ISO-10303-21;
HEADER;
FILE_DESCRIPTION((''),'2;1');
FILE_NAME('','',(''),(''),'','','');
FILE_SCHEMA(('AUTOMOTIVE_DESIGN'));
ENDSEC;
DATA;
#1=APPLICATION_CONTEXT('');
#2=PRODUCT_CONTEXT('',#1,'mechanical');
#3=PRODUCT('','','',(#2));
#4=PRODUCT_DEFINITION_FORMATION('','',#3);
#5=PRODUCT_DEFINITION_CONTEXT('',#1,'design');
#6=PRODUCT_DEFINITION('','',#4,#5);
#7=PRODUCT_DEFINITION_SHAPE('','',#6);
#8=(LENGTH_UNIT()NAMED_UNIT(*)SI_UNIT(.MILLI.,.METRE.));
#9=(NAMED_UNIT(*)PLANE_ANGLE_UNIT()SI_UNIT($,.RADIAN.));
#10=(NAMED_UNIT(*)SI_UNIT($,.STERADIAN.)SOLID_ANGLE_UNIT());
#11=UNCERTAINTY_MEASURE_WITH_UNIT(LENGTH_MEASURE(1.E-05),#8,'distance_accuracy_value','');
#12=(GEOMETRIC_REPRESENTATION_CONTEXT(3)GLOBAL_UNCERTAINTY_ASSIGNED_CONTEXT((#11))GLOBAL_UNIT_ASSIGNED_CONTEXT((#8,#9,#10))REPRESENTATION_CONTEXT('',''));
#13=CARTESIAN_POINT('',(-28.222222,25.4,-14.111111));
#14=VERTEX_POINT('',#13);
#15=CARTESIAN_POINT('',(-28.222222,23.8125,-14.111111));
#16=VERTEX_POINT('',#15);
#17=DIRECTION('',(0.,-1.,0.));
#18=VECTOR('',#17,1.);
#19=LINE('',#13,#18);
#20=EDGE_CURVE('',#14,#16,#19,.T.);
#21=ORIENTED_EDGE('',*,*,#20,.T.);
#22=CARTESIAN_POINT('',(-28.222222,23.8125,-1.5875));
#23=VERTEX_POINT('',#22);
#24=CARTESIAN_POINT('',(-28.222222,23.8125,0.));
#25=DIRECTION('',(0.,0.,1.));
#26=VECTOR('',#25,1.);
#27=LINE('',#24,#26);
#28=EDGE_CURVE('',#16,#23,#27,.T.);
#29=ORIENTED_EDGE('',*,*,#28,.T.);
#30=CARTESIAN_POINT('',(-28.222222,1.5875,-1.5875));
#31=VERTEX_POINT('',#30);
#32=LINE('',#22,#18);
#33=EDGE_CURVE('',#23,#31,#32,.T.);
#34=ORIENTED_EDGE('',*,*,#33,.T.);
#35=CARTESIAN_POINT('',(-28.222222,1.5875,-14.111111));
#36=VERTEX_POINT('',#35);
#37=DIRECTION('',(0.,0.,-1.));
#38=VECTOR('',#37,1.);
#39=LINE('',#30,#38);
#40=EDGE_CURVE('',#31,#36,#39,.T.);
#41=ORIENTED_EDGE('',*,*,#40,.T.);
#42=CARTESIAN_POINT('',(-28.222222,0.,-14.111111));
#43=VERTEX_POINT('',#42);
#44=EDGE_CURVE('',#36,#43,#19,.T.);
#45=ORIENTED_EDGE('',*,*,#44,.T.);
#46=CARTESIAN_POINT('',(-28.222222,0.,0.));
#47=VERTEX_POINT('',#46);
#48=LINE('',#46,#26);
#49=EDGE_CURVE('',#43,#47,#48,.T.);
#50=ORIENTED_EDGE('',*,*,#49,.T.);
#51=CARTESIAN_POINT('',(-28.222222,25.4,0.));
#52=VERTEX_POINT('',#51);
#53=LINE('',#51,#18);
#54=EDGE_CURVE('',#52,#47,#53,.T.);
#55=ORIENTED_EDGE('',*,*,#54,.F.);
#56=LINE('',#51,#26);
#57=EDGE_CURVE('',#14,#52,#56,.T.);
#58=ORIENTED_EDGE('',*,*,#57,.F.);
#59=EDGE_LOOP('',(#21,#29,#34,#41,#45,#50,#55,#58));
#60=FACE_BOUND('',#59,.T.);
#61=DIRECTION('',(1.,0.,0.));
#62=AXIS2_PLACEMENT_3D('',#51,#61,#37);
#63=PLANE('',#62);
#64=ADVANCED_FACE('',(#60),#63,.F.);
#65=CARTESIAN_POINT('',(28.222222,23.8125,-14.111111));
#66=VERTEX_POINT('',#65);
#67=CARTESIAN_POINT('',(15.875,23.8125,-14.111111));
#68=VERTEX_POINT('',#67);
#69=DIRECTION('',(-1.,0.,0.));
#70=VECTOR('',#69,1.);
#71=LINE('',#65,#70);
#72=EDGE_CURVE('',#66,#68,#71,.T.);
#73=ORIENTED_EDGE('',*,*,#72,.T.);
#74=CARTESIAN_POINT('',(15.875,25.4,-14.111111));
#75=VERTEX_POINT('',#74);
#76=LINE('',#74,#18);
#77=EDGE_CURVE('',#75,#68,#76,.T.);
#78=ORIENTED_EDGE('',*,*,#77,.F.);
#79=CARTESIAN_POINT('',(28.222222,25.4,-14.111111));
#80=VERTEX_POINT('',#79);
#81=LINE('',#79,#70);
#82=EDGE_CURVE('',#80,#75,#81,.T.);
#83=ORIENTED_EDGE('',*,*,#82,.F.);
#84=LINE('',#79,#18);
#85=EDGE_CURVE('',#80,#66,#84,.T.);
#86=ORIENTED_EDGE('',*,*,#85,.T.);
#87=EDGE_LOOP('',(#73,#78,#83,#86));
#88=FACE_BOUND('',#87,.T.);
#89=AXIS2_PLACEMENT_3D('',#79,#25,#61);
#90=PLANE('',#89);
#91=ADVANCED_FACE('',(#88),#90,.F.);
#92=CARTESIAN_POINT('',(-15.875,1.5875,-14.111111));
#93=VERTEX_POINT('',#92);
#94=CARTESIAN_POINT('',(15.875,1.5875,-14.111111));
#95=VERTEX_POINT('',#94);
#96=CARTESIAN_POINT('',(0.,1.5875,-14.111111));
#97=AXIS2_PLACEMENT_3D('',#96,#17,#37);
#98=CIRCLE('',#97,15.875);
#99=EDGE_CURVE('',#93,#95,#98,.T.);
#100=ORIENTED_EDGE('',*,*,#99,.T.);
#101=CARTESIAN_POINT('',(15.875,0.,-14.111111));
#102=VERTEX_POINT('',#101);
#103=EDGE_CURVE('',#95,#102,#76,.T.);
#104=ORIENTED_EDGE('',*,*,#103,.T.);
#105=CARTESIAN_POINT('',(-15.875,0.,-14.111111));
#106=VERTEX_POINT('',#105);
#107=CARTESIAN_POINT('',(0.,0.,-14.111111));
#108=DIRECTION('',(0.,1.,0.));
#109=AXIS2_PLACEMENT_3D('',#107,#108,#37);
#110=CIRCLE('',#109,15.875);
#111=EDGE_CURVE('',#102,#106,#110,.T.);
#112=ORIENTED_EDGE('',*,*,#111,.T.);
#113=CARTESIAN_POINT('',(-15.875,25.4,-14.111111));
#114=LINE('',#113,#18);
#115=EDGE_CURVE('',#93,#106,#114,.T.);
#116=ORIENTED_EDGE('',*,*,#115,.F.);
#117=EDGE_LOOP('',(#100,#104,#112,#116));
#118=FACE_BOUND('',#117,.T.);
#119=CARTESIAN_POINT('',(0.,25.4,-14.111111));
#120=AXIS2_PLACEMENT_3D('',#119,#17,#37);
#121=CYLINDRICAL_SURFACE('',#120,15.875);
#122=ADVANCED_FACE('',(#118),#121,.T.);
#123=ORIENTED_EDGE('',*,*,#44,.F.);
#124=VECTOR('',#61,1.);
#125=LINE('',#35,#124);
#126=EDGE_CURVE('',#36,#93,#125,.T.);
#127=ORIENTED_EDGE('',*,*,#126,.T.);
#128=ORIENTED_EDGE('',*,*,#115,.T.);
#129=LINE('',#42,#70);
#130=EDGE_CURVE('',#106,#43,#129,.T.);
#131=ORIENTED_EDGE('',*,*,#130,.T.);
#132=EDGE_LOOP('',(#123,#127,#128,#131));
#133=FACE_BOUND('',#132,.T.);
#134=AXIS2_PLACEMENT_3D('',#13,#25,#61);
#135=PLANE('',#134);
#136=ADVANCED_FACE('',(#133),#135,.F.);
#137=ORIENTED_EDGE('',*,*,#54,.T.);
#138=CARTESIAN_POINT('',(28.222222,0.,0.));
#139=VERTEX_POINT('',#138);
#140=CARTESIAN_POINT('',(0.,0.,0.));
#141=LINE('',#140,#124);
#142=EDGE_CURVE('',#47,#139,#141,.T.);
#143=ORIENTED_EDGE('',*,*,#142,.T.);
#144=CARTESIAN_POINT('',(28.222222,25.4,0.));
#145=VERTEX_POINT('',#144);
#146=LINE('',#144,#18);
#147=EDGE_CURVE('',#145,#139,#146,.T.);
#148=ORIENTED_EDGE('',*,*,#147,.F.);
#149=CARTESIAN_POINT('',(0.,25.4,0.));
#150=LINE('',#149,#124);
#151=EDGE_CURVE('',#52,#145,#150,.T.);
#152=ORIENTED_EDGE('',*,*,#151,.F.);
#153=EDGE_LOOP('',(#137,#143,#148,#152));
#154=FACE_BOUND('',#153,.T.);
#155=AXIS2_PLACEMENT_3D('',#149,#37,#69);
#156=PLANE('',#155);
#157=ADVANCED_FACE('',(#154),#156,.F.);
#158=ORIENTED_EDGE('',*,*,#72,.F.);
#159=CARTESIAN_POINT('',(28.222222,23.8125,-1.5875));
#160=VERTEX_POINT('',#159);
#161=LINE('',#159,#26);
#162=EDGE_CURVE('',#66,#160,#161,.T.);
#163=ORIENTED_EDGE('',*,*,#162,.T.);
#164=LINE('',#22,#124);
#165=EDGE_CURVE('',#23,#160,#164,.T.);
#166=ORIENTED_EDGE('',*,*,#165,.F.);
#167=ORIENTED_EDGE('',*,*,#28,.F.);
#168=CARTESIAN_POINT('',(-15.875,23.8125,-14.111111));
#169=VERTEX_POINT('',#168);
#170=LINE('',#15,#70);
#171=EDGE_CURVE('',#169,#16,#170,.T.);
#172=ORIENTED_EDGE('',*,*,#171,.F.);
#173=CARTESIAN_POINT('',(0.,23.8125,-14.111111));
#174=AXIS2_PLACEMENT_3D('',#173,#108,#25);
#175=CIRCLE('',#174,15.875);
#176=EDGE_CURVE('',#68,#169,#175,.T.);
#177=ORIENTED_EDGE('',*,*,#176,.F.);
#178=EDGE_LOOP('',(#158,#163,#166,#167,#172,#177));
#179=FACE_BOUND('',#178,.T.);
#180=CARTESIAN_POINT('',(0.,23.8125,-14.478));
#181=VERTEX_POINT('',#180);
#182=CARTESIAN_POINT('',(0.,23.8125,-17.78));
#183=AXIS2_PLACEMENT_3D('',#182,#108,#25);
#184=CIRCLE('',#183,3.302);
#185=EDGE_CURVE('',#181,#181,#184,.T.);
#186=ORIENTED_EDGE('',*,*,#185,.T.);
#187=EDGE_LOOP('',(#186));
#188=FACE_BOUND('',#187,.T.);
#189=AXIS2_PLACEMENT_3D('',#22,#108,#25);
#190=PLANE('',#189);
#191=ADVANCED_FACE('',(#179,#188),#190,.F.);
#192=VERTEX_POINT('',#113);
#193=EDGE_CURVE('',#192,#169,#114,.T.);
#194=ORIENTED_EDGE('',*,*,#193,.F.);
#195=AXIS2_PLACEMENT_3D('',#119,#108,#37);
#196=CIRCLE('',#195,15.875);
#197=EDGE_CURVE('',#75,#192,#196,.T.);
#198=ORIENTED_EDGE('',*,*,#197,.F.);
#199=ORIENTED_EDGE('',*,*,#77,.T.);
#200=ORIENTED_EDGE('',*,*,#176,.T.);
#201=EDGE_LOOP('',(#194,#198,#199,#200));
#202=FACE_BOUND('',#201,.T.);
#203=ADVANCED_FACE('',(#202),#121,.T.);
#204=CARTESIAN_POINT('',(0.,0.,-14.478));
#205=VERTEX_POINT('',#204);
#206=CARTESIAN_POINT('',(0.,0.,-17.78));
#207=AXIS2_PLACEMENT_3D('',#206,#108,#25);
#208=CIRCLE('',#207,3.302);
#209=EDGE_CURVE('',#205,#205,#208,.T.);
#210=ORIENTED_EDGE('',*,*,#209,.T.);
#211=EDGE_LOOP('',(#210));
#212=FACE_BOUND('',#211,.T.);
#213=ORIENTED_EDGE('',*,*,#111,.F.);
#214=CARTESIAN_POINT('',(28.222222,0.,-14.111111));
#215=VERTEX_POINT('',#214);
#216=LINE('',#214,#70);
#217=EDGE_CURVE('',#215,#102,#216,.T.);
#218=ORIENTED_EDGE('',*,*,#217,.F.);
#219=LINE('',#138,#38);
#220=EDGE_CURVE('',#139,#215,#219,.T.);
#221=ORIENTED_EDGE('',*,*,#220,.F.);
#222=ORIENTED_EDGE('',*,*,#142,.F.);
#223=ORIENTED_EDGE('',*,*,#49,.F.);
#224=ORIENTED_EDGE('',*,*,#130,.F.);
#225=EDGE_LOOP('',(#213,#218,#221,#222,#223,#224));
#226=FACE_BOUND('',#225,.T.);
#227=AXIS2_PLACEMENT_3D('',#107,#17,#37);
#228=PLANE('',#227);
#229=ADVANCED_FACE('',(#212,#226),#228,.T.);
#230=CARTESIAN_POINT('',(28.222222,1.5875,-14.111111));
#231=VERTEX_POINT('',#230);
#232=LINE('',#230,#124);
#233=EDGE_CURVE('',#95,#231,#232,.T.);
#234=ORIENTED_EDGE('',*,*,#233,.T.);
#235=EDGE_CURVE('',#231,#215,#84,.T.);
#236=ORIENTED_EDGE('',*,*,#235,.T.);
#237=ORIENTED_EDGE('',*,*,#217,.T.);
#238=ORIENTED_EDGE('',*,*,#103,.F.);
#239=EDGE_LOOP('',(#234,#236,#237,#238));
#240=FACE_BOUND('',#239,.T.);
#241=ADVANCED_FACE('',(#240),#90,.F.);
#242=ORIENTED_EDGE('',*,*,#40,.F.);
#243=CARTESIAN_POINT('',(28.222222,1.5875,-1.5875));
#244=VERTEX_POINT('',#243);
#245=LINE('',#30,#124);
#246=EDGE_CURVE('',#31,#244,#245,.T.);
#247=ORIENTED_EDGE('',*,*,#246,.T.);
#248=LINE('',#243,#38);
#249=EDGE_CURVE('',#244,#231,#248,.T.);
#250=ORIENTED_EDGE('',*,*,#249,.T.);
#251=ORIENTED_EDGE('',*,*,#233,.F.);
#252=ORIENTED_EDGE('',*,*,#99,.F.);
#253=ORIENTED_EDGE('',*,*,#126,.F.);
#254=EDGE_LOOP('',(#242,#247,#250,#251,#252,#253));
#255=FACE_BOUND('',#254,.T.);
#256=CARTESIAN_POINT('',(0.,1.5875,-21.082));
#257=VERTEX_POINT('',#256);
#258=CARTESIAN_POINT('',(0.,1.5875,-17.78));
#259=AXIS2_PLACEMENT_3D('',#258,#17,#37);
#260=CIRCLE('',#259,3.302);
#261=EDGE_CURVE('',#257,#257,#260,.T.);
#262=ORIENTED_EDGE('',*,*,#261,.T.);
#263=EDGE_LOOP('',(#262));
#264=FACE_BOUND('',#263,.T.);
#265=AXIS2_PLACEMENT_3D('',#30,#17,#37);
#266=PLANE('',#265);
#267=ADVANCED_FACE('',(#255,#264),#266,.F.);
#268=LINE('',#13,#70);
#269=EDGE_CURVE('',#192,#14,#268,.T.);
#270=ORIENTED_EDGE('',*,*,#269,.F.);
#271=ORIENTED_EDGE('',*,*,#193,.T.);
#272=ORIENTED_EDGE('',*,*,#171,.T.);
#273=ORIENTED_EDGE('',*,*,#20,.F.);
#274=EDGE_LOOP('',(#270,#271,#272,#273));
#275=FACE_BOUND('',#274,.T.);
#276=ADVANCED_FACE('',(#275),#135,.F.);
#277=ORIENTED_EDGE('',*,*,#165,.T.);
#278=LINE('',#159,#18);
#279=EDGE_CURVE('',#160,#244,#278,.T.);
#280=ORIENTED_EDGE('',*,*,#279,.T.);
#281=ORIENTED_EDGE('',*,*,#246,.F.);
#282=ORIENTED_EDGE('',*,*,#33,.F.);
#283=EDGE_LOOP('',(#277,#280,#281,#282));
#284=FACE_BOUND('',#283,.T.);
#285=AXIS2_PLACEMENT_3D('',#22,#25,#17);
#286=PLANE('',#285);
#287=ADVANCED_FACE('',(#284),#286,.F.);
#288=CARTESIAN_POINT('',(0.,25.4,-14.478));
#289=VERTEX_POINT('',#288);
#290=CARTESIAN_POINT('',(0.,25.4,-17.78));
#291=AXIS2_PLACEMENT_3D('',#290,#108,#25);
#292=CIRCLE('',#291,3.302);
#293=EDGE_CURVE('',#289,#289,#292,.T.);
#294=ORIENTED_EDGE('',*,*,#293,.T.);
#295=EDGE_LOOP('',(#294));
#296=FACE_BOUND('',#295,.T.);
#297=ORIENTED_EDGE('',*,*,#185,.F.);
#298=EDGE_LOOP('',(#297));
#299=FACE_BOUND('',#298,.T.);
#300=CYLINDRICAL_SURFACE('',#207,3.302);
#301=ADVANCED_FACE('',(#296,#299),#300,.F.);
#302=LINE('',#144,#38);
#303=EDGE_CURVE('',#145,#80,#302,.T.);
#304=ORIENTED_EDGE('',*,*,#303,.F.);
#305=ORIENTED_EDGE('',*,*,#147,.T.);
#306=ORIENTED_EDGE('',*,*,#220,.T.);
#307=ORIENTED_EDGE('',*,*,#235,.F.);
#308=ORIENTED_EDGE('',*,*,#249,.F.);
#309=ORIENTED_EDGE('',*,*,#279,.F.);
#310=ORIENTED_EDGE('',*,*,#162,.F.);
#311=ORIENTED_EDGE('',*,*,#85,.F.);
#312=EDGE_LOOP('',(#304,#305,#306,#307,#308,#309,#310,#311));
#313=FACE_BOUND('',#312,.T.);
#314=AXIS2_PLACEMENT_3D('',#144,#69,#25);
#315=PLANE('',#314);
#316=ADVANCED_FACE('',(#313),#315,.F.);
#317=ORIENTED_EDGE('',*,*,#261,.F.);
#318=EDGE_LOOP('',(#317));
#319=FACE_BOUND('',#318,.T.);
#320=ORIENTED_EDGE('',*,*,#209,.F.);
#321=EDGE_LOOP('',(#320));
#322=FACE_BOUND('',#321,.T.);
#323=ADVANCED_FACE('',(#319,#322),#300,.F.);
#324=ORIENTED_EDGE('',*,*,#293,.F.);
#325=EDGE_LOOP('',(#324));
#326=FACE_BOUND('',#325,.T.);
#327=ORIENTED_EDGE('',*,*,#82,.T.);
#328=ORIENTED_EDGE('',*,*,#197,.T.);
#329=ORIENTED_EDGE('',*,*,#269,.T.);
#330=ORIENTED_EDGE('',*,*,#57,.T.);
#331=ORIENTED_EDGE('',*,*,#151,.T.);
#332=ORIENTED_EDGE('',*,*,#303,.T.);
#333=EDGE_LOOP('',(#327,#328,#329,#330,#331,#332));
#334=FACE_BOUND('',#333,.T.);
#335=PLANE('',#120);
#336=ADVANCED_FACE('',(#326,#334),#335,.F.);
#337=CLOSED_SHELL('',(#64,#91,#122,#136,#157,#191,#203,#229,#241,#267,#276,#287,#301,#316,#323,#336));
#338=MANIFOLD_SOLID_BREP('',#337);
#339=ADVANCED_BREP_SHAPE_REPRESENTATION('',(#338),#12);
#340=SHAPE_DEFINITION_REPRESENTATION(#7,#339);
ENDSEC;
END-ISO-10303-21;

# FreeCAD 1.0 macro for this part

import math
import FreeCAD as App
import Part
import Sketcher
Q = App.Units.Quantity

doc = App.newDocument("Part")
body = doc.addObject("PartDesign::Body", "Body")

# Sketch on XZ plane
sketch1 = body.newObject("Sketcher::SketchObject", "Sketch")
sketch1.AttachmentSupport = (doc.getObject("XZ_Plane"), [""])
sketch1.MapMode = "FlatFace"
sketch1.addGeometry([
    Part.LineSegment(App.Vector(28, 0, 0), App.Vector(28, -14, 0)),  # 0
    Part.LineSegment(App.Vector(28, -14, 0), App.Vector(16, -14, 0)),  # 1
    Part.ArcOfCircle(Part.Circle(App.Vector(0, -14, 0), App.Vector(0, 0, 1), 16), math.radians(180), math.radians(360)),  # 2
    Part.LineSegment(App.Vector(-16, -14, 0), App.Vector(-28, -14, 0)),  # 3
    Part.LineSegment(App.Vector(-28, -14, 0), App.Vector(-28, 0, 0)),  # 4
    Part.LineSegment(App.Vector(-28, 0, 0), App.Vector(28, 0, 0)),  # 5
], False)
sketch1.addConstraint([
    Sketcher.Constraint("Coincident", 0, 2, 1, 1),
    Sketcher.Constraint("Coincident", 1, 2, 2, 2),
    Sketcher.Constraint("Coincident", 2, 1, 3, 1),
    Sketcher.Constraint("Coincident", 3, 2, 4, 1),
    Sketcher.Constraint("Coincident", 4, 2, 5, 1),
    Sketcher.Constraint("Coincident", 5, 2, 0, 1),
    Sketcher.Constraint("Vertical", 0),
    Sketcher.Constraint("Horizontal", 1),
    Sketcher.Constraint("Horizontal", 3),
    Sketcher.Constraint("Vertical", 4),
    Sketcher.Constraint("Horizontal", 5),
    Sketcher.Constraint("Symmetric", 4, 2, 5, 2, -1, 1),
    Sketcher.Constraint("Symmetric", 1, 2, 2, 1, -2),
    Sketcher.Constraint("Horizontal", 2, 3, 0, 2),
    Sketcher.Constraint("Radius", 2, Q("0.625 in")),
    Sketcher.Constraint("DistanceY", 0, 2, 0, 1, Q("14.111111 mm")),
    Sketcher.Constraint("DistanceX", 1, 2, 1, 1, Q("12.347222 mm")),
])
pad1 = body.newObject("PartDesign::Pad", "Pad")
pad1.Profile = sketch1
pad1.Length = Q("1 in")
pad1.Reversed = True

# Sketch on YZ plane
sketch2 = body.newObject("Sketcher::SketchObject", "Sketch001")
sketch2.AttachmentSupport = (doc.getObject("YZ_Plane"), [""])
sketch2.MapMode = "FlatFace"
sketch2.AttachmentOffset = App.Placement(App.Vector(0, 0, 28.222222), App.Rotation())
sketch2.addGeometry([
    Part.LineSegment(App.Vector(24, -2, 0), App.Vector(2, -2, 0)),
    Part.LineSegment(App.Vector(2, -2, 0), App.Vector(2, -63, 0)),
    Part.LineSegment(App.Vector(2, -63, 0), App.Vector(24, -63, 0)),
    Part.LineSegment(App.Vector(24, -63, 0), App.Vector(24, -2, 0)),
], False)
sketch2.addConstraint([
    Sketcher.Constraint("Coincident", 0, 2, 1, 1),
    Sketcher.Constraint("Coincident", 1, 2, 2, 1),
    Sketcher.Constraint("Coincident", 2, 2, 3, 1),
    Sketcher.Constraint("Coincident", 3, 2, 0, 1),
    Sketcher.Constraint("Horizontal", 0),
    Sketcher.Constraint("Vertical", 1),
    Sketcher.Constraint("Horizontal", 2),
    Sketcher.Constraint("Vertical", 3),
    Sketcher.Constraint("DistanceX", 0, 2, 0, 1, Q("0.875 in")),
    Sketcher.Constraint("DistanceX", -1, 1, 0, 2, Q("0.0625 in")),
    Sketcher.Constraint("DistanceY", 0, 2, -1, 1, Q("0.0625 in")),
    Sketcher.Constraint("DistanceY", 1, 2, 1, 1, Q("61.065778 mm")),
])
pocket1 = body.newObject("PartDesign::Pocket", "Pocket")
pocket1.Profile = sketch2
pocket1.Type = "ThroughAll"

# Sketch on XZ plane
sketch3 = body.newObject("Sketcher::SketchObject", "Sketch002")
sketch3.AttachmentSupport = (doc.getObject("XZ_Plane"), [""])
sketch3.MapMode = "FlatFace"
sketch3.AttachmentOffset = App.Placement(App.Vector(0, 0, -1 * 25.4), App.Rotation())
sketch3.addGeometry(Part.Circle(App.Vector(0, -17.8, 0), App.Vector(0, 0, 1), 3.3), False)
sketch3.addConstraint([
    Sketcher.Constraint("PointOnObject", 0, 3, -2),
    Sketcher.Constraint("Diameter", 0, Q("0.26 in")),
    Sketcher.Constraint("DistanceY", 0, 3, -1, 1, Q("0.7 in")),
])
pocket2 = body.newObject("PartDesign::Pocket", "Pocket001")
pocket2.Profile = sketch3
pocket2.Type = "ThroughAll"
pocket2.Reversed = True

doc.recompute()
